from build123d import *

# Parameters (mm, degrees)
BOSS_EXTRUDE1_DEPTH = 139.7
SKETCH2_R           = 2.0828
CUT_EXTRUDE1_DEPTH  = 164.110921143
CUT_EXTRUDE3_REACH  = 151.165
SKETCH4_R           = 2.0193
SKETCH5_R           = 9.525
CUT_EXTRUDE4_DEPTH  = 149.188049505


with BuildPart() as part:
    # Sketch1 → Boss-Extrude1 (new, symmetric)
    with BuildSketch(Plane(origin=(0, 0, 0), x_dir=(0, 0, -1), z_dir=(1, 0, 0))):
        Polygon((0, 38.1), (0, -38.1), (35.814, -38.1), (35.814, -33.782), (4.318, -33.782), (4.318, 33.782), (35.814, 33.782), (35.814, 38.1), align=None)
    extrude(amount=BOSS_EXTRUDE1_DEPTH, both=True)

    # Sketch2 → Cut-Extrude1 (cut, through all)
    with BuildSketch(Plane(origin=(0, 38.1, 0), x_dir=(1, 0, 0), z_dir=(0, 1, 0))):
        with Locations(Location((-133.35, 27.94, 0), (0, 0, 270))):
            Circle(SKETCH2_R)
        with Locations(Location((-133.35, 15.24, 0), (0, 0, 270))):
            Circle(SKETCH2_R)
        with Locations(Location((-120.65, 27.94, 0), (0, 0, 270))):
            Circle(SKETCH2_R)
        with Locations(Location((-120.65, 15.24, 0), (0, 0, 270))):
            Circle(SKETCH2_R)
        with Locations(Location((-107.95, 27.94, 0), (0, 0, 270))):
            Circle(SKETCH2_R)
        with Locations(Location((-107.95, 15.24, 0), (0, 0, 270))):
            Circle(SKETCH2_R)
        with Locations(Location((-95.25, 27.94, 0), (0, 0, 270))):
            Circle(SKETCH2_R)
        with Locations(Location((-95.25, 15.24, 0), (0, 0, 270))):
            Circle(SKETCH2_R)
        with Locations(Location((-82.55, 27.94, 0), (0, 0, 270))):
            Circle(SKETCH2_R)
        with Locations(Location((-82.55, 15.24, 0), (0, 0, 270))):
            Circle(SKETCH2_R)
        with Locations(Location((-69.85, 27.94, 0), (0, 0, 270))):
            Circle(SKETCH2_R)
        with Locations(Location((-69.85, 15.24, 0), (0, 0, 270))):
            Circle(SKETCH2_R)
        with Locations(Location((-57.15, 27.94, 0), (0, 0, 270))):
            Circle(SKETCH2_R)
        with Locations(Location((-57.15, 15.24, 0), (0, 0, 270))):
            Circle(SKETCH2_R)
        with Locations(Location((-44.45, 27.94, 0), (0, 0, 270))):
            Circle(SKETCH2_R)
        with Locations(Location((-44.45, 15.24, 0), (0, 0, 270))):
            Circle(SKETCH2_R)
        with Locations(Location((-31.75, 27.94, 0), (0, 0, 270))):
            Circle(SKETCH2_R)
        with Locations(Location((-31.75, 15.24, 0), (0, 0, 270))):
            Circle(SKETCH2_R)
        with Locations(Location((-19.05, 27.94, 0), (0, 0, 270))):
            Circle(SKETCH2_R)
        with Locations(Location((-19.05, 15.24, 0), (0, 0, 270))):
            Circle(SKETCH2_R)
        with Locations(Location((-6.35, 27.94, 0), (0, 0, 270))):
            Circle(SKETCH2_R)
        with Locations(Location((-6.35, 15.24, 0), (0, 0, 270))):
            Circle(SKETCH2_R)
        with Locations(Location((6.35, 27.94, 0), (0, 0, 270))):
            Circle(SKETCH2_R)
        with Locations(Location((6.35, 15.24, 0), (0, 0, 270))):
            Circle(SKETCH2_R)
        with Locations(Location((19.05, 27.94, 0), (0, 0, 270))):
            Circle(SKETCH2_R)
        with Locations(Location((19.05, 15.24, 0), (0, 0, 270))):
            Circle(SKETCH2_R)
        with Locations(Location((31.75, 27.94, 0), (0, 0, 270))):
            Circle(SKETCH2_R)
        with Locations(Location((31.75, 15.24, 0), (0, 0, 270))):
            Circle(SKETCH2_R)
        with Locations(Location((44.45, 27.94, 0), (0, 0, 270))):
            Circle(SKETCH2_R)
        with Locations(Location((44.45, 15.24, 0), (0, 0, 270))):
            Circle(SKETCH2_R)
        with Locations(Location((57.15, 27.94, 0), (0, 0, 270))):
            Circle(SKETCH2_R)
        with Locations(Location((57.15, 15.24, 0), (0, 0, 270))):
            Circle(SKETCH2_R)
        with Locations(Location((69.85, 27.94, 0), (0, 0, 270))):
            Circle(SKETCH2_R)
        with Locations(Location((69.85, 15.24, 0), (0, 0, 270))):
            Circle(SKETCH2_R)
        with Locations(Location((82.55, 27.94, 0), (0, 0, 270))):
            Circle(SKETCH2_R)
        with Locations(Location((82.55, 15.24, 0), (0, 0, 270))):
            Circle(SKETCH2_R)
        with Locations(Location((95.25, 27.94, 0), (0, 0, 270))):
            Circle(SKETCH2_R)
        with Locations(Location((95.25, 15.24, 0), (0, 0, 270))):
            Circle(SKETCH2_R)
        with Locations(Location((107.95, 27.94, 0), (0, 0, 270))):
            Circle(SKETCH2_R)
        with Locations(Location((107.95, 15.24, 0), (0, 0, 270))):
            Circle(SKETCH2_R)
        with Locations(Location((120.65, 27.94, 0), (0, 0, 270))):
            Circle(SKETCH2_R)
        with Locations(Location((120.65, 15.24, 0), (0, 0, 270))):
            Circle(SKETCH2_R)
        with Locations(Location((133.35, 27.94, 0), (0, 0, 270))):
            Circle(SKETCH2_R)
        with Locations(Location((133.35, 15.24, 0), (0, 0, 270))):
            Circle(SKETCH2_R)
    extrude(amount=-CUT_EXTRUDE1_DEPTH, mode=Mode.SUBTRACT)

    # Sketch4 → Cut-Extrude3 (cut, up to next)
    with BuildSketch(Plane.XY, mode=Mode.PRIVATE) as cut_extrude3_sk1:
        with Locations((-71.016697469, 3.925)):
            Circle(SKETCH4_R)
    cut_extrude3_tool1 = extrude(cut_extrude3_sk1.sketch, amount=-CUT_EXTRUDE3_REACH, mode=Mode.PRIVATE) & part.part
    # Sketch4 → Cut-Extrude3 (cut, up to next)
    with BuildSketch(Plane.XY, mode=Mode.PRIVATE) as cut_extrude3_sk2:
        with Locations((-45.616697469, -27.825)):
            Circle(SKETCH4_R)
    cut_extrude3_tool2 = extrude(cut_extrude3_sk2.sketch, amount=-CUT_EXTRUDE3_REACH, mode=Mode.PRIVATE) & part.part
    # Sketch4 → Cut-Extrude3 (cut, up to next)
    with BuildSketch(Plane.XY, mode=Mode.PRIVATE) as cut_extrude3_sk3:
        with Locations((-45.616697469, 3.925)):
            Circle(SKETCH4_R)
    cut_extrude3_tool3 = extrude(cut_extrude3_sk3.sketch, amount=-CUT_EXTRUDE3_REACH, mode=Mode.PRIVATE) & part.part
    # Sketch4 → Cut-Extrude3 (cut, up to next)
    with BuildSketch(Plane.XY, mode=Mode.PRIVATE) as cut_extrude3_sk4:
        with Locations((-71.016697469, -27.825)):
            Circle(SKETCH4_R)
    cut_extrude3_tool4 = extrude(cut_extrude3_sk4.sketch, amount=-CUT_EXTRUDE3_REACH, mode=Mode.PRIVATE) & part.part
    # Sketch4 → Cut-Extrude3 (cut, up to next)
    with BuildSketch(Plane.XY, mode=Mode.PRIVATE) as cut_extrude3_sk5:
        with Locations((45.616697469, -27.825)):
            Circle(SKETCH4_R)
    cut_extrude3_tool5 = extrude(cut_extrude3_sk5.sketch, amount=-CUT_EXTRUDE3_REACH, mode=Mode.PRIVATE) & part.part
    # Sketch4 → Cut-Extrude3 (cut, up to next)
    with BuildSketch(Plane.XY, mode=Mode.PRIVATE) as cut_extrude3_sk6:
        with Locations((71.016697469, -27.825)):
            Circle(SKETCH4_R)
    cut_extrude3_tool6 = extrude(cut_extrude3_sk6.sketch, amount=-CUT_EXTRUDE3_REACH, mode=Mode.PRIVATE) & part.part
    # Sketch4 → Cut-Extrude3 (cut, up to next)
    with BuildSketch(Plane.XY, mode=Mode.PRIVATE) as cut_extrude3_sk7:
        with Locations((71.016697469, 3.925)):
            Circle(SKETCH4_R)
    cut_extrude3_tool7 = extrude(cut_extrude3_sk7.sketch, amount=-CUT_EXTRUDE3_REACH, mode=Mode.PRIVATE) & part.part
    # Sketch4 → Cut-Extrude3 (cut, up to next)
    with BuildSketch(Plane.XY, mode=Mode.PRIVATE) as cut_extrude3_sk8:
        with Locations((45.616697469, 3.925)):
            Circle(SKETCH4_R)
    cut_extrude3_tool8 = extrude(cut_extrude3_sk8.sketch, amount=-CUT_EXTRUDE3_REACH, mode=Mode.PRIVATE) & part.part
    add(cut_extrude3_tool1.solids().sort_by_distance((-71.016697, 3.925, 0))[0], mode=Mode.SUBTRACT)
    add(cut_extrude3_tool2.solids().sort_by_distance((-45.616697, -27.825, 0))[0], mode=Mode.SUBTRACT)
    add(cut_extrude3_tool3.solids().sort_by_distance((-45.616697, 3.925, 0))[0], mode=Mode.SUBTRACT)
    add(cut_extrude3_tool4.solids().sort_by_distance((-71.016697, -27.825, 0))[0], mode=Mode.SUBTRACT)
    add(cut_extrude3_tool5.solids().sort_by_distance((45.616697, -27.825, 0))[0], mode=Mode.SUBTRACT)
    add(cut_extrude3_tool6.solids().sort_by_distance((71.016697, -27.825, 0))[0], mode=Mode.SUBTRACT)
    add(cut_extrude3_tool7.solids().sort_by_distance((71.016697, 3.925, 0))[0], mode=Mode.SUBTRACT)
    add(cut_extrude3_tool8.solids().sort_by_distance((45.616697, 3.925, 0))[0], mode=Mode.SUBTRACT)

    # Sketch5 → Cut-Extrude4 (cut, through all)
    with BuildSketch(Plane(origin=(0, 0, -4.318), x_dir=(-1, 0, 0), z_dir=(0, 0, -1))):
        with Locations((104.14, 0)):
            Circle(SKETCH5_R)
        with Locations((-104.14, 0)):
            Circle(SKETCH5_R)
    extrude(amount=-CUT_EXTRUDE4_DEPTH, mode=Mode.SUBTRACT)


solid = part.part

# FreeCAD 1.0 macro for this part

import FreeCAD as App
import Part
import Sketcher
from FreeCAD import Vector
Q = App.Units.Quantity


def add_polygon(sketch, points):
    """Adds a closed chain of lines whose ends are joined by coincident constraints."""
    first, n = sketch.GeometryCount, len(points)
    for a, b in zip(points, points[1:] + points[:1]):
        sketch.addGeometry(Part.LineSegment(App.Vector(*a, 0), App.Vector(*b, 0)), False)
    for i in range(n):
        sketch.addConstraint(Sketcher.Constraint("Coincident", first + i, 2, first + (i + 1) % n, 1))

doc = App.newDocument("Part")
body = doc.addObject("PartDesign::Body", "Body")

# Sketch on YZ plane
sketch1 = body.newObject("Sketcher::SketchObject", "Sketch")
sketch1.AttachmentSupport = (doc.getObject("YZ_Plane"), [""])
sketch1.MapMode = "FlatFace"
add_polygon(sketch1, [(38.1, 0), (-38.1, 0), (-38.1, -35.8), (-33.8, -35.8), (-33.8, -4.3), (33.8, -4.3), (33.8, -35.8), (38.1, -35.8)])  # lines 0-7
sketch1.addConstraint([
    Sketcher.Constraint("Horizontal", 0),
    Sketcher.Constraint("Vertical", 1),
    Sketcher.Constraint("Horizontal", 2),
    Sketcher.Constraint("Vertical", 3),
    Sketcher.Constraint("Horizontal", 4),
    Sketcher.Constraint("Vertical", 5),
    Sketcher.Constraint("Horizontal", 6),
    Sketcher.Constraint("Vertical", 7),
    Sketcher.Constraint("Symmetric", 0, 2, 7, 2, -1, 1),
    Sketcher.Constraint("Symmetric", 2, 2, 5, 2, -2),
    Sketcher.Constraint("DistanceX", 0, 2, 0, 1, Q("3 in")),
    Sketcher.Constraint("DistanceX", 2, 1, 2, 2, Q("0.17 in")),
    Sketcher.Constraint("DistanceY", 1, 2, 1, 1, Q("1.41 in")),
    Sketcher.Constraint("DistanceY", 3, 1, 3, 2, Q("1.24 in")),
])
pad1 = body.newObject("PartDesign::Pad", "Pad")
pad1.Profile = sketch1
pad1.Length = Q("11 in")
pad1.Midplane = True

# Sketch on XZ plane
sketch2 = body.newObject("Sketcher::SketchObject", "Sketch001")
sketch2.AttachmentSupport = (doc.getObject("XZ_Plane"), [""])
sketch2.MapMode = "FlatFace"
sketch2.AttachmentOffset = App.Placement(Vector(0, 0, -1.5 * 25.4), App.Rotation())
sketch2.addGeometry([
    Part.Circle(Vector(-133.3, -27.9, 0), Vector(0, 0, 1), 2.1),  # 0
    Part.Circle(Vector(-133.3, -15.2, 0), Vector(0, 0, 1), 2.1),  # 1
    Part.Circle(Vector(-120.7, -27.9, 0), Vector(0, 0, 1), 2.1),  # 2
    Part.Circle(Vector(-120.7, -15.2, 0), Vector(0, 0, 1), 2.1),  # 3
    Part.Circle(Vector(-108, -27.9, 0), Vector(0, 0, 1), 2.1),  # 4
    Part.Circle(Vector(-108, -15.2, 0), Vector(0, 0, 1), 2.1),  # 5
    Part.Circle(Vector(-95.2, -27.9, 0), Vector(0, 0, 1), 2.1),  # 6
    Part.Circle(Vector(-95.2, -15.2, 0), Vector(0, 0, 1), 2.1),  # 7
    Part.Circle(Vector(-82.5, -27.9, 0), Vector(0, 0, 1), 2.1),  # 8
    Part.Circle(Vector(-82.5, -15.2, 0), Vector(0, 0, 1), 2.1),  # 9
    Part.Circle(Vector(-69.8, -27.9, 0), Vector(0, 0, 1), 2.1),  # 10
    Part.Circle(Vector(-69.8, -15.2, 0), Vector(0, 0, 1), 2.1),  # 11
    Part.Circle(Vector(-57.1, -27.9, 0), Vector(0, 0, 1), 2.1),  # 12
    Part.Circle(Vector(-57.1, -15.2, 0), Vector(0, 0, 1), 2.1),  # 13
    Part.Circle(Vector(-44.5, -27.9, 0), Vector(0, 0, 1), 2.1),  # 14
    Part.Circle(Vector(-44.5, -15.2, 0), Vector(0, 0, 1), 2.1),  # 15
    Part.Circle(Vector(-31.8, -27.9, 0), Vector(0, 0, 1), 2.1),  # 16
    Part.Circle(Vector(-31.8, -15.2, 0), Vector(0, 0, 1), 2.1),  # 17
    Part.Circle(Vector(-19.1, -27.9, 0), Vector(0, 0, 1), 2.1),  # 18
    Part.Circle(Vector(-19.1, -15.2, 0), Vector(0, 0, 1), 2.1),  # 19
    Part.Circle(Vector(-6.3, -27.9, 0), Vector(0, 0, 1), 2.1),  # 20
    Part.Circle(Vector(-6.3, -15.2, 0), Vector(0, 0, 1), 2.1),  # 21
    Part.Circle(Vector(6.3, -27.9, 0), Vector(0, 0, 1), 2.1),  # 22
    Part.Circle(Vector(6.3, -15.2, 0), Vector(0, 0, 1), 2.1),  # 23
    Part.Circle(Vector(19.1, -27.9, 0), Vector(0, 0, 1), 2.1),  # 24
    Part.Circle(Vector(19.1, -15.2, 0), Vector(0, 0, 1), 2.1),  # 25
    Part.Circle(Vector(31.8, -27.9, 0), Vector(0, 0, 1), 2.1),  # 26
    Part.Circle(Vector(31.8, -15.2, 0), Vector(0, 0, 1), 2.1),  # 27
    Part.Circle(Vector(44.5, -27.9, 0), Vector(0, 0, 1), 2.1),  # 28
    Part.Circle(Vector(44.5, -15.2, 0), Vector(0, 0, 1), 2.1),  # 29
    Part.Circle(Vector(57.1, -27.9, 0), Vector(0, 0, 1), 2.1),  # 30
    Part.Circle(Vector(57.1, -15.2, 0), Vector(0, 0, 1), 2.1),  # 31
    Part.Circle(Vector(69.8, -27.9, 0), Vector(0, 0, 1), 2.1),  # 32
    Part.Circle(Vector(69.8, -15.2, 0), Vector(0, 0, 1), 2.1),  # 33
    Part.Circle(Vector(82.5, -27.9, 0), Vector(0, 0, 1), 2.1),  # 34
    Part.Circle(Vector(82.5, -15.2, 0), Vector(0, 0, 1), 2.1),  # 35
    Part.Circle(Vector(95.2, -27.9, 0), Vector(0, 0, 1), 2.1),  # 36
    Part.Circle(Vector(95.2, -15.2, 0), Vector(0, 0, 1), 2.1),  # 37
    Part.Circle(Vector(108, -27.9, 0), Vector(0, 0, 1), 2.1),  # 38
    Part.Circle(Vector(108, -15.2, 0), Vector(0, 0, 1), 2.1),  # 39
    Part.Circle(Vector(120.7, -27.9, 0), Vector(0, 0, 1), 2.1),  # 40
    Part.Circle(Vector(120.7, -15.2, 0), Vector(0, 0, 1), 2.1),  # 41
    Part.Circle(Vector(133.3, -27.9, 0), Vector(0, 0, 1), 2.1),  # 42
    Part.Circle(Vector(133.3, -15.2, 0), Vector(0, 0, 1), 2.1),  # 43
], False)
sketch2.addConstraint([
    Sketcher.Constraint("Equal", 0, 1),
    Sketcher.Constraint("Equal", 1, 2),
    Sketcher.Constraint("Equal", 2, 3),
    Sketcher.Constraint("Equal", 3, 4),
    Sketcher.Constraint("Equal", 4, 5),
    Sketcher.Constraint("Equal", 5, 6),
    Sketcher.Constraint("Equal", 6, 7),
    Sketcher.Constraint("Equal", 7, 8),
    Sketcher.Constraint("Equal", 8, 9),
    Sketcher.Constraint("Equal", 9, 10),
    Sketcher.Constraint("Equal", 10, 11),
    Sketcher.Constraint("Equal", 11, 12),
    Sketcher.Constraint("Equal", 12, 13),
    Sketcher.Constraint("Equal", 13, 14),
    Sketcher.Constraint("Equal", 14, 15),
    Sketcher.Constraint("Equal", 15, 16),
    Sketcher.Constraint("Equal", 16, 17),
    Sketcher.Constraint("Equal", 17, 18),
    Sketcher.Constraint("Equal", 18, 19),
    Sketcher.Constraint("Equal", 19, 20),
    Sketcher.Constraint("Equal", 20, 21),
    Sketcher.Constraint("Equal", 21, 22),
    Sketcher.Constraint("Equal", 22, 23),
    Sketcher.Constraint("Equal", 23, 24),
    Sketcher.Constraint("Equal", 24, 25),
    Sketcher.Constraint("Equal", 25, 26),
    Sketcher.Constraint("Equal", 26, 27),
    Sketcher.Constraint("Equal", 27, 28),
    Sketcher.Constraint("Equal", 28, 29),
    Sketcher.Constraint("Equal", 29, 30),
    Sketcher.Constraint("Equal", 30, 31),
    Sketcher.Constraint("Equal", 31, 32),
    Sketcher.Constraint("Equal", 32, 33),
    Sketcher.Constraint("Equal", 33, 34),
    Sketcher.Constraint("Equal", 34, 35),
    Sketcher.Constraint("Equal", 35, 36),
    Sketcher.Constraint("Equal", 36, 37),
    Sketcher.Constraint("Equal", 37, 38),
    Sketcher.Constraint("Equal", 38, 39),
    Sketcher.Constraint("Equal", 39, 40),
    Sketcher.Constraint("Equal", 40, 41),
    Sketcher.Constraint("Equal", 41, 42),
    Sketcher.Constraint("Equal", 42, 43),
    Sketcher.Constraint("Symmetric", 20, 3, 22, 3, -2),
    Sketcher.Constraint("Symmetric", 21, 3, 23, 3, -2),
    Sketcher.Constraint("Symmetric", 18, 3, 24, 3, -2),
    Sketcher.Constraint("Symmetric", 19, 3, 25, 3, -2),
    Sketcher.Constraint("Symmetric", 16, 3, 26, 3, -2),
    Sketcher.Constraint("Symmetric", 17, 3, 27, 3, -2),
    Sketcher.Constraint("Symmetric", 14, 3, 28, 3, -2),
    Sketcher.Constraint("Symmetric", 15, 3, 29, 3, -2),
    Sketcher.Constraint("Symmetric", 12, 3, 30, 3, -2),
    Sketcher.Constraint("Symmetric", 13, 3, 31, 3, -2),
    Sketcher.Constraint("Symmetric", 10, 3, 32, 3, -2),
    Sketcher.Constraint("Symmetric", 11, 3, 33, 3, -2),
    Sketcher.Constraint("Symmetric", 8, 3, 34, 3, -2),
    Sketcher.Constraint("Symmetric", 9, 3, 35, 3, -2),
    Sketcher.Constraint("Symmetric", 6, 3, 36, 3, -2),
    Sketcher.Constraint("Symmetric", 7, 3, 37, 3, -2),
    Sketcher.Constraint("Symmetric", 4, 3, 38, 3, -2),
    Sketcher.Constraint("Symmetric", 5, 3, 39, 3, -2),
    Sketcher.Constraint("Symmetric", 2, 3, 40, 3, -2),
    Sketcher.Constraint("Symmetric", 3, 3, 41, 3, -2),
    Sketcher.Constraint("Symmetric", 0, 3, 42, 3, -2),
    Sketcher.Constraint("Symmetric", 1, 3, 43, 3, -2),
    Sketcher.Constraint("Horizontal", 0, 3, 2, 3),
    Sketcher.Constraint("Horizontal", 1, 3, 3, 3),
    Sketcher.Constraint("Horizontal", 2, 3, 4, 3),
    Sketcher.Constraint("Horizontal", 3, 3, 5, 3),
    Sketcher.Constraint("Horizontal", 4, 3, 6, 3),
    Sketcher.Constraint("Horizontal", 5, 3, 7, 3),
    Sketcher.Constraint("Horizontal", 6, 3, 8, 3),
    Sketcher.Constraint("Horizontal", 7, 3, 9, 3),
    Sketcher.Constraint("Horizontal", 8, 3, 10, 3),
    Sketcher.Constraint("Horizontal", 9, 3, 11, 3),
    Sketcher.Constraint("Horizontal", 10, 3, 12, 3),
    Sketcher.Constraint("Horizontal", 11, 3, 13, 3),
    Sketcher.Constraint("Horizontal", 12, 3, 14, 3),
    Sketcher.Constraint("Horizontal", 13, 3, 15, 3),
    Sketcher.Constraint("Horizontal", 14, 3, 16, 3),
    Sketcher.Constraint("Horizontal", 15, 3, 17, 3),
    Sketcher.Constraint("Horizontal", 16, 3, 18, 3),
    Sketcher.Constraint("Horizontal", 17, 3, 19, 3),
    Sketcher.Constraint("Horizontal", 18, 3, 20, 3),
    Sketcher.Constraint("Horizontal", 19, 3, 21, 3),
    Sketcher.Constraint("Vertical", 0, 3, 1, 3),
    Sketcher.Constraint("Vertical", 2, 3, 3, 3),
    Sketcher.Constraint("Vertical", 4, 3, 5, 3),
    Sketcher.Constraint("Vertical", 6, 3, 7, 3),
    Sketcher.Constraint("Vertical", 8, 3, 9, 3),
    Sketcher.Constraint("Vertical", 10, 3, 11, 3),
    Sketcher.Constraint("Vertical", 12, 3, 13, 3),
    Sketcher.Constraint("Vertical", 14, 3, 15, 3),
    Sketcher.Constraint("Vertical", 16, 3, 17, 3),
    Sketcher.Constraint("Vertical", 18, 3, 19, 3),
    Sketcher.Constraint("Vertical", 20, 3, 21, 3),
    Sketcher.Constraint("Diameter", 0, Q("0.164 in")),
    Sketcher.Constraint("DistanceX", 0, 3, 4, 3, Q("1 in")),
    Sketcher.Constraint("DistanceX", 2, 3, 6, 3, Q("1 in")),
    Sketcher.Constraint("DistanceX", 4, 3, 8, 3, Q("1 in")),
    Sketcher.Constraint("DistanceX", 6, 3, 10, 3, Q("1 in")),
    Sketcher.Constraint("DistanceX", 8, 3, 12, 3, Q("1 in")),
    Sketcher.Constraint("DistanceX", 10, 3, 14, 3, Q("1 in")),
    Sketcher.Constraint("DistanceX", 12, 3, 16, 3, Q("1 in")),
    Sketcher.Constraint("DistanceX", 14, 3, 18, 3, Q("1 in")),
    Sketcher.Constraint("DistanceX", 16, 3, 20, 3, Q("1 in")),
    Sketcher.Constraint("DistanceX", 18, 3, 22, 3, Q("1 in")),
    Sketcher.Constraint("DistanceY", 0, 3, -1, 1, Q("1.1 in")),
    Sketcher.Constraint("DistanceY", 1, 3, -1, 1, Q("0.6 in")),
    Sketcher.Constraint("DistanceX", 0, 3, 2, 3, Q("0.5 in")),
])
pocket1 = body.newObject("PartDesign::Pocket", "Pocket")
pocket1.Profile = sketch2
pocket1.Type = "ThroughAll"
pocket1.Reversed = True

# Sketch on XY plane
sketch3 = body.newObject("Sketcher::SketchObject", "Sketch002")
sketch3.AttachmentSupport = (doc.getObject("XY_Plane"), [""])
sketch3.MapMode = "FlatFace"
sketch3.addGeometry(Part.Circle(Vector(-71, 3.9, 0), Vector(0, 0, 1), 2), False)
sketch3.addConstraint([
    Sketcher.Constraint("Diameter", 0, Q("0.159 in")),
    Sketcher.Constraint("DistanceY", -1, 1, 0, 3, 3.925),
    Sketcher.Constraint("DistanceX", 0, 3, -1, 1, 71.016697),
])
pocket2 = body.newObject("PartDesign::Pocket", "Pocket001")
pocket2.Profile = sketch3
pocket2.Type = "UpToFirst"

# Sketch on XY plane
sketch4 = body.newObject("Sketcher::SketchObject", "Sketch003")
sketch4.AttachmentSupport = (doc.getObject("XY_Plane"), [""])
sketch4.MapMode = "FlatFace"
sketch4.addGeometry(Part.Circle(Vector(-45.6, -27.8, 0), Vector(0, 0, 1), 2), False)
sketch4.addConstraint([
    Sketcher.Constraint("Diameter", 0, Q("0.159 in")),
    Sketcher.Constraint("DistanceY", 0, 3, -1, 1, 27.825),
    Sketcher.Constraint("DistanceX", 0, 3, -1, 1, 45.616697),
])
pocket3 = body.newObject("PartDesign::Pocket", "Pocket002")
pocket3.Profile = sketch4
pocket3.Type = "UpToFirst"

# Sketch on XY plane
sketch5 = body.newObject("Sketcher::SketchObject", "Sketch004")
sketch5.AttachmentSupport = (doc.getObject("XY_Plane"), [""])
sketch5.MapMode = "FlatFace"
sketch5.addGeometry(Part.Circle(Vector(-45.6, 3.9, 0), Vector(0, 0, 1), 2), False)
sketch5.addConstraint([
    Sketcher.Constraint("Diameter", 0, Q("0.159 in")),
    Sketcher.Constraint("DistanceY", -1, 1, 0, 3, 3.925),
    Sketcher.Constraint("DistanceX", 0, 3, -1, 1, 45.616697),
])
pocket4 = body.newObject("PartDesign::Pocket", "Pocket003")
pocket4.Profile = sketch5
pocket4.Type = "UpToFirst"

# Sketch on XY plane
sketch6 = body.newObject("Sketcher::SketchObject", "Sketch005")
sketch6.AttachmentSupport = (doc.getObject("XY_Plane"), [""])
sketch6.MapMode = "FlatFace"
sketch6.addGeometry(Part.Circle(Vector(-71, -27.8, 0), Vector(0, 0, 1), 2), False)
sketch6.addConstraint([
    Sketcher.Constraint("Diameter", 0, Q("0.159 in")),
    Sketcher.Constraint("DistanceY", 0, 3, -1, 1, 27.825),
    Sketcher.Constraint("DistanceX", 0, 3, -1, 1, 71.016697),
])
pocket5 = body.newObject("PartDesign::Pocket", "Pocket004")
pocket5.Profile = sketch6
pocket5.Type = "UpToFirst"

# Sketch on XY plane
sketch7 = body.newObject("Sketcher::SketchObject", "Sketch006")
sketch7.AttachmentSupport = (doc.getObject("XY_Plane"), [""])
sketch7.MapMode = "FlatFace"
sketch7.addGeometry(Part.Circle(Vector(45.6, -27.8, 0), Vector(0, 0, 1), 2), False)
sketch7.addConstraint([
    Sketcher.Constraint("Diameter", 0, Q("0.159 in")),
    Sketcher.Constraint("DistanceY", 0, 3, -1, 1, 27.825),
    Sketcher.Constraint("DistanceX", -1, 1, 0, 3, 45.616697),
])
pocket6 = body.newObject("PartDesign::Pocket", "Pocket005")
pocket6.Profile = sketch7
pocket6.Type = "UpToFirst"

# Sketch on XY plane
sketch8 = body.newObject("Sketcher::SketchObject", "Sketch007")
sketch8.AttachmentSupport = (doc.getObject("XY_Plane"), [""])
sketch8.MapMode = "FlatFace"
sketch8.addGeometry(Part.Circle(Vector(71, -27.8, 0), Vector(0, 0, 1), 2), False)
sketch8.addConstraint([
    Sketcher.Constraint("Diameter", 0, Q("0.159 in")),
    Sketcher.Constraint("DistanceY", 0, 3, -1, 1, 27.825),
    Sketcher.Constraint("DistanceX", -1, 1, 0, 3, 71.016697),
])
pocket7 = body.newObject("PartDesign::Pocket", "Pocket006")
pocket7.Profile = sketch8
pocket7.Type = "UpToFirst"

# Sketch on XY plane
sketch9 = body.newObject("Sketcher::SketchObject", "Sketch008")
sketch9.AttachmentSupport = (doc.getObject("XY_Plane"), [""])
sketch9.MapMode = "FlatFace"
sketch9.addGeometry(Part.Circle(Vector(71, 3.9, 0), Vector(0, 0, 1), 2), False)
sketch9.addConstraint([
    Sketcher.Constraint("Diameter", 0, Q("0.159 in")),
    Sketcher.Constraint("DistanceY", -1, 1, 0, 3, 3.925),
    Sketcher.Constraint("DistanceX", -1, 1, 0, 3, 71.016697),
])
pocket8 = body.newObject("PartDesign::Pocket", "Pocket007")
pocket8.Profile = sketch9
pocket8.Type = "UpToFirst"

# Sketch on XY plane
sketch10 = body.newObject("Sketcher::SketchObject", "Sketch009")
sketch10.AttachmentSupport = (doc.getObject("XY_Plane"), [""])
sketch10.MapMode = "FlatFace"
sketch10.addGeometry(Part.Circle(Vector(45.6, 3.9, 0), Vector(0, 0, 1), 2), False)
sketch10.addConstraint([
    Sketcher.Constraint("Diameter", 0, Q("0.159 in")),
    Sketcher.Constraint("DistanceY", -1, 1, 0, 3, 3.925),
    Sketcher.Constraint("DistanceX", -1, 1, 0, 3, 45.616697),
])
pocket9 = body.newObject("PartDesign::Pocket", "Pocket008")
pocket9.Profile = sketch10
pocket9.Type = "UpToFirst"

# Sketch on XY plane
sketch11 = body.newObject("Sketcher::SketchObject", "Sketch010")
sketch11.AttachmentSupport = (doc.getObject("XY_Plane"), [""])
sketch11.MapMode = "FlatFace"
sketch11.AttachmentOffset = App.Placement(Vector(0, 0, -0.17 * 25.4), App.Rotation())
sketch11.addGeometry([
    Part.Circle(Vector(-104, 0, 0), Vector(0, 0, 1), 10),
    Part.Circle(Vector(104, 0, 0), Vector(0, 0, 1), 10),
], False)
sketch11.addConstraint([
    Sketcher.Constraint("Equal", 0, 1),
    Sketcher.Constraint("Symmetric", 0, 3, 1, 3, -1, 1),
    Sketcher.Constraint("PointOnObject", 0, 3, -1),
    Sketcher.Constraint("Diameter", 0, Q("0.75 in")),
    Sketcher.Constraint("DistanceX", 0, 3, -1, 1, Q("4.1 in")),
])
pocket10 = body.newObject("PartDesign::Pocket", "Pocket009")
pocket10.Profile = sketch11
pocket10.Type = "ThroughAll"
pocket10.Reversed = True

doc.recompute()
